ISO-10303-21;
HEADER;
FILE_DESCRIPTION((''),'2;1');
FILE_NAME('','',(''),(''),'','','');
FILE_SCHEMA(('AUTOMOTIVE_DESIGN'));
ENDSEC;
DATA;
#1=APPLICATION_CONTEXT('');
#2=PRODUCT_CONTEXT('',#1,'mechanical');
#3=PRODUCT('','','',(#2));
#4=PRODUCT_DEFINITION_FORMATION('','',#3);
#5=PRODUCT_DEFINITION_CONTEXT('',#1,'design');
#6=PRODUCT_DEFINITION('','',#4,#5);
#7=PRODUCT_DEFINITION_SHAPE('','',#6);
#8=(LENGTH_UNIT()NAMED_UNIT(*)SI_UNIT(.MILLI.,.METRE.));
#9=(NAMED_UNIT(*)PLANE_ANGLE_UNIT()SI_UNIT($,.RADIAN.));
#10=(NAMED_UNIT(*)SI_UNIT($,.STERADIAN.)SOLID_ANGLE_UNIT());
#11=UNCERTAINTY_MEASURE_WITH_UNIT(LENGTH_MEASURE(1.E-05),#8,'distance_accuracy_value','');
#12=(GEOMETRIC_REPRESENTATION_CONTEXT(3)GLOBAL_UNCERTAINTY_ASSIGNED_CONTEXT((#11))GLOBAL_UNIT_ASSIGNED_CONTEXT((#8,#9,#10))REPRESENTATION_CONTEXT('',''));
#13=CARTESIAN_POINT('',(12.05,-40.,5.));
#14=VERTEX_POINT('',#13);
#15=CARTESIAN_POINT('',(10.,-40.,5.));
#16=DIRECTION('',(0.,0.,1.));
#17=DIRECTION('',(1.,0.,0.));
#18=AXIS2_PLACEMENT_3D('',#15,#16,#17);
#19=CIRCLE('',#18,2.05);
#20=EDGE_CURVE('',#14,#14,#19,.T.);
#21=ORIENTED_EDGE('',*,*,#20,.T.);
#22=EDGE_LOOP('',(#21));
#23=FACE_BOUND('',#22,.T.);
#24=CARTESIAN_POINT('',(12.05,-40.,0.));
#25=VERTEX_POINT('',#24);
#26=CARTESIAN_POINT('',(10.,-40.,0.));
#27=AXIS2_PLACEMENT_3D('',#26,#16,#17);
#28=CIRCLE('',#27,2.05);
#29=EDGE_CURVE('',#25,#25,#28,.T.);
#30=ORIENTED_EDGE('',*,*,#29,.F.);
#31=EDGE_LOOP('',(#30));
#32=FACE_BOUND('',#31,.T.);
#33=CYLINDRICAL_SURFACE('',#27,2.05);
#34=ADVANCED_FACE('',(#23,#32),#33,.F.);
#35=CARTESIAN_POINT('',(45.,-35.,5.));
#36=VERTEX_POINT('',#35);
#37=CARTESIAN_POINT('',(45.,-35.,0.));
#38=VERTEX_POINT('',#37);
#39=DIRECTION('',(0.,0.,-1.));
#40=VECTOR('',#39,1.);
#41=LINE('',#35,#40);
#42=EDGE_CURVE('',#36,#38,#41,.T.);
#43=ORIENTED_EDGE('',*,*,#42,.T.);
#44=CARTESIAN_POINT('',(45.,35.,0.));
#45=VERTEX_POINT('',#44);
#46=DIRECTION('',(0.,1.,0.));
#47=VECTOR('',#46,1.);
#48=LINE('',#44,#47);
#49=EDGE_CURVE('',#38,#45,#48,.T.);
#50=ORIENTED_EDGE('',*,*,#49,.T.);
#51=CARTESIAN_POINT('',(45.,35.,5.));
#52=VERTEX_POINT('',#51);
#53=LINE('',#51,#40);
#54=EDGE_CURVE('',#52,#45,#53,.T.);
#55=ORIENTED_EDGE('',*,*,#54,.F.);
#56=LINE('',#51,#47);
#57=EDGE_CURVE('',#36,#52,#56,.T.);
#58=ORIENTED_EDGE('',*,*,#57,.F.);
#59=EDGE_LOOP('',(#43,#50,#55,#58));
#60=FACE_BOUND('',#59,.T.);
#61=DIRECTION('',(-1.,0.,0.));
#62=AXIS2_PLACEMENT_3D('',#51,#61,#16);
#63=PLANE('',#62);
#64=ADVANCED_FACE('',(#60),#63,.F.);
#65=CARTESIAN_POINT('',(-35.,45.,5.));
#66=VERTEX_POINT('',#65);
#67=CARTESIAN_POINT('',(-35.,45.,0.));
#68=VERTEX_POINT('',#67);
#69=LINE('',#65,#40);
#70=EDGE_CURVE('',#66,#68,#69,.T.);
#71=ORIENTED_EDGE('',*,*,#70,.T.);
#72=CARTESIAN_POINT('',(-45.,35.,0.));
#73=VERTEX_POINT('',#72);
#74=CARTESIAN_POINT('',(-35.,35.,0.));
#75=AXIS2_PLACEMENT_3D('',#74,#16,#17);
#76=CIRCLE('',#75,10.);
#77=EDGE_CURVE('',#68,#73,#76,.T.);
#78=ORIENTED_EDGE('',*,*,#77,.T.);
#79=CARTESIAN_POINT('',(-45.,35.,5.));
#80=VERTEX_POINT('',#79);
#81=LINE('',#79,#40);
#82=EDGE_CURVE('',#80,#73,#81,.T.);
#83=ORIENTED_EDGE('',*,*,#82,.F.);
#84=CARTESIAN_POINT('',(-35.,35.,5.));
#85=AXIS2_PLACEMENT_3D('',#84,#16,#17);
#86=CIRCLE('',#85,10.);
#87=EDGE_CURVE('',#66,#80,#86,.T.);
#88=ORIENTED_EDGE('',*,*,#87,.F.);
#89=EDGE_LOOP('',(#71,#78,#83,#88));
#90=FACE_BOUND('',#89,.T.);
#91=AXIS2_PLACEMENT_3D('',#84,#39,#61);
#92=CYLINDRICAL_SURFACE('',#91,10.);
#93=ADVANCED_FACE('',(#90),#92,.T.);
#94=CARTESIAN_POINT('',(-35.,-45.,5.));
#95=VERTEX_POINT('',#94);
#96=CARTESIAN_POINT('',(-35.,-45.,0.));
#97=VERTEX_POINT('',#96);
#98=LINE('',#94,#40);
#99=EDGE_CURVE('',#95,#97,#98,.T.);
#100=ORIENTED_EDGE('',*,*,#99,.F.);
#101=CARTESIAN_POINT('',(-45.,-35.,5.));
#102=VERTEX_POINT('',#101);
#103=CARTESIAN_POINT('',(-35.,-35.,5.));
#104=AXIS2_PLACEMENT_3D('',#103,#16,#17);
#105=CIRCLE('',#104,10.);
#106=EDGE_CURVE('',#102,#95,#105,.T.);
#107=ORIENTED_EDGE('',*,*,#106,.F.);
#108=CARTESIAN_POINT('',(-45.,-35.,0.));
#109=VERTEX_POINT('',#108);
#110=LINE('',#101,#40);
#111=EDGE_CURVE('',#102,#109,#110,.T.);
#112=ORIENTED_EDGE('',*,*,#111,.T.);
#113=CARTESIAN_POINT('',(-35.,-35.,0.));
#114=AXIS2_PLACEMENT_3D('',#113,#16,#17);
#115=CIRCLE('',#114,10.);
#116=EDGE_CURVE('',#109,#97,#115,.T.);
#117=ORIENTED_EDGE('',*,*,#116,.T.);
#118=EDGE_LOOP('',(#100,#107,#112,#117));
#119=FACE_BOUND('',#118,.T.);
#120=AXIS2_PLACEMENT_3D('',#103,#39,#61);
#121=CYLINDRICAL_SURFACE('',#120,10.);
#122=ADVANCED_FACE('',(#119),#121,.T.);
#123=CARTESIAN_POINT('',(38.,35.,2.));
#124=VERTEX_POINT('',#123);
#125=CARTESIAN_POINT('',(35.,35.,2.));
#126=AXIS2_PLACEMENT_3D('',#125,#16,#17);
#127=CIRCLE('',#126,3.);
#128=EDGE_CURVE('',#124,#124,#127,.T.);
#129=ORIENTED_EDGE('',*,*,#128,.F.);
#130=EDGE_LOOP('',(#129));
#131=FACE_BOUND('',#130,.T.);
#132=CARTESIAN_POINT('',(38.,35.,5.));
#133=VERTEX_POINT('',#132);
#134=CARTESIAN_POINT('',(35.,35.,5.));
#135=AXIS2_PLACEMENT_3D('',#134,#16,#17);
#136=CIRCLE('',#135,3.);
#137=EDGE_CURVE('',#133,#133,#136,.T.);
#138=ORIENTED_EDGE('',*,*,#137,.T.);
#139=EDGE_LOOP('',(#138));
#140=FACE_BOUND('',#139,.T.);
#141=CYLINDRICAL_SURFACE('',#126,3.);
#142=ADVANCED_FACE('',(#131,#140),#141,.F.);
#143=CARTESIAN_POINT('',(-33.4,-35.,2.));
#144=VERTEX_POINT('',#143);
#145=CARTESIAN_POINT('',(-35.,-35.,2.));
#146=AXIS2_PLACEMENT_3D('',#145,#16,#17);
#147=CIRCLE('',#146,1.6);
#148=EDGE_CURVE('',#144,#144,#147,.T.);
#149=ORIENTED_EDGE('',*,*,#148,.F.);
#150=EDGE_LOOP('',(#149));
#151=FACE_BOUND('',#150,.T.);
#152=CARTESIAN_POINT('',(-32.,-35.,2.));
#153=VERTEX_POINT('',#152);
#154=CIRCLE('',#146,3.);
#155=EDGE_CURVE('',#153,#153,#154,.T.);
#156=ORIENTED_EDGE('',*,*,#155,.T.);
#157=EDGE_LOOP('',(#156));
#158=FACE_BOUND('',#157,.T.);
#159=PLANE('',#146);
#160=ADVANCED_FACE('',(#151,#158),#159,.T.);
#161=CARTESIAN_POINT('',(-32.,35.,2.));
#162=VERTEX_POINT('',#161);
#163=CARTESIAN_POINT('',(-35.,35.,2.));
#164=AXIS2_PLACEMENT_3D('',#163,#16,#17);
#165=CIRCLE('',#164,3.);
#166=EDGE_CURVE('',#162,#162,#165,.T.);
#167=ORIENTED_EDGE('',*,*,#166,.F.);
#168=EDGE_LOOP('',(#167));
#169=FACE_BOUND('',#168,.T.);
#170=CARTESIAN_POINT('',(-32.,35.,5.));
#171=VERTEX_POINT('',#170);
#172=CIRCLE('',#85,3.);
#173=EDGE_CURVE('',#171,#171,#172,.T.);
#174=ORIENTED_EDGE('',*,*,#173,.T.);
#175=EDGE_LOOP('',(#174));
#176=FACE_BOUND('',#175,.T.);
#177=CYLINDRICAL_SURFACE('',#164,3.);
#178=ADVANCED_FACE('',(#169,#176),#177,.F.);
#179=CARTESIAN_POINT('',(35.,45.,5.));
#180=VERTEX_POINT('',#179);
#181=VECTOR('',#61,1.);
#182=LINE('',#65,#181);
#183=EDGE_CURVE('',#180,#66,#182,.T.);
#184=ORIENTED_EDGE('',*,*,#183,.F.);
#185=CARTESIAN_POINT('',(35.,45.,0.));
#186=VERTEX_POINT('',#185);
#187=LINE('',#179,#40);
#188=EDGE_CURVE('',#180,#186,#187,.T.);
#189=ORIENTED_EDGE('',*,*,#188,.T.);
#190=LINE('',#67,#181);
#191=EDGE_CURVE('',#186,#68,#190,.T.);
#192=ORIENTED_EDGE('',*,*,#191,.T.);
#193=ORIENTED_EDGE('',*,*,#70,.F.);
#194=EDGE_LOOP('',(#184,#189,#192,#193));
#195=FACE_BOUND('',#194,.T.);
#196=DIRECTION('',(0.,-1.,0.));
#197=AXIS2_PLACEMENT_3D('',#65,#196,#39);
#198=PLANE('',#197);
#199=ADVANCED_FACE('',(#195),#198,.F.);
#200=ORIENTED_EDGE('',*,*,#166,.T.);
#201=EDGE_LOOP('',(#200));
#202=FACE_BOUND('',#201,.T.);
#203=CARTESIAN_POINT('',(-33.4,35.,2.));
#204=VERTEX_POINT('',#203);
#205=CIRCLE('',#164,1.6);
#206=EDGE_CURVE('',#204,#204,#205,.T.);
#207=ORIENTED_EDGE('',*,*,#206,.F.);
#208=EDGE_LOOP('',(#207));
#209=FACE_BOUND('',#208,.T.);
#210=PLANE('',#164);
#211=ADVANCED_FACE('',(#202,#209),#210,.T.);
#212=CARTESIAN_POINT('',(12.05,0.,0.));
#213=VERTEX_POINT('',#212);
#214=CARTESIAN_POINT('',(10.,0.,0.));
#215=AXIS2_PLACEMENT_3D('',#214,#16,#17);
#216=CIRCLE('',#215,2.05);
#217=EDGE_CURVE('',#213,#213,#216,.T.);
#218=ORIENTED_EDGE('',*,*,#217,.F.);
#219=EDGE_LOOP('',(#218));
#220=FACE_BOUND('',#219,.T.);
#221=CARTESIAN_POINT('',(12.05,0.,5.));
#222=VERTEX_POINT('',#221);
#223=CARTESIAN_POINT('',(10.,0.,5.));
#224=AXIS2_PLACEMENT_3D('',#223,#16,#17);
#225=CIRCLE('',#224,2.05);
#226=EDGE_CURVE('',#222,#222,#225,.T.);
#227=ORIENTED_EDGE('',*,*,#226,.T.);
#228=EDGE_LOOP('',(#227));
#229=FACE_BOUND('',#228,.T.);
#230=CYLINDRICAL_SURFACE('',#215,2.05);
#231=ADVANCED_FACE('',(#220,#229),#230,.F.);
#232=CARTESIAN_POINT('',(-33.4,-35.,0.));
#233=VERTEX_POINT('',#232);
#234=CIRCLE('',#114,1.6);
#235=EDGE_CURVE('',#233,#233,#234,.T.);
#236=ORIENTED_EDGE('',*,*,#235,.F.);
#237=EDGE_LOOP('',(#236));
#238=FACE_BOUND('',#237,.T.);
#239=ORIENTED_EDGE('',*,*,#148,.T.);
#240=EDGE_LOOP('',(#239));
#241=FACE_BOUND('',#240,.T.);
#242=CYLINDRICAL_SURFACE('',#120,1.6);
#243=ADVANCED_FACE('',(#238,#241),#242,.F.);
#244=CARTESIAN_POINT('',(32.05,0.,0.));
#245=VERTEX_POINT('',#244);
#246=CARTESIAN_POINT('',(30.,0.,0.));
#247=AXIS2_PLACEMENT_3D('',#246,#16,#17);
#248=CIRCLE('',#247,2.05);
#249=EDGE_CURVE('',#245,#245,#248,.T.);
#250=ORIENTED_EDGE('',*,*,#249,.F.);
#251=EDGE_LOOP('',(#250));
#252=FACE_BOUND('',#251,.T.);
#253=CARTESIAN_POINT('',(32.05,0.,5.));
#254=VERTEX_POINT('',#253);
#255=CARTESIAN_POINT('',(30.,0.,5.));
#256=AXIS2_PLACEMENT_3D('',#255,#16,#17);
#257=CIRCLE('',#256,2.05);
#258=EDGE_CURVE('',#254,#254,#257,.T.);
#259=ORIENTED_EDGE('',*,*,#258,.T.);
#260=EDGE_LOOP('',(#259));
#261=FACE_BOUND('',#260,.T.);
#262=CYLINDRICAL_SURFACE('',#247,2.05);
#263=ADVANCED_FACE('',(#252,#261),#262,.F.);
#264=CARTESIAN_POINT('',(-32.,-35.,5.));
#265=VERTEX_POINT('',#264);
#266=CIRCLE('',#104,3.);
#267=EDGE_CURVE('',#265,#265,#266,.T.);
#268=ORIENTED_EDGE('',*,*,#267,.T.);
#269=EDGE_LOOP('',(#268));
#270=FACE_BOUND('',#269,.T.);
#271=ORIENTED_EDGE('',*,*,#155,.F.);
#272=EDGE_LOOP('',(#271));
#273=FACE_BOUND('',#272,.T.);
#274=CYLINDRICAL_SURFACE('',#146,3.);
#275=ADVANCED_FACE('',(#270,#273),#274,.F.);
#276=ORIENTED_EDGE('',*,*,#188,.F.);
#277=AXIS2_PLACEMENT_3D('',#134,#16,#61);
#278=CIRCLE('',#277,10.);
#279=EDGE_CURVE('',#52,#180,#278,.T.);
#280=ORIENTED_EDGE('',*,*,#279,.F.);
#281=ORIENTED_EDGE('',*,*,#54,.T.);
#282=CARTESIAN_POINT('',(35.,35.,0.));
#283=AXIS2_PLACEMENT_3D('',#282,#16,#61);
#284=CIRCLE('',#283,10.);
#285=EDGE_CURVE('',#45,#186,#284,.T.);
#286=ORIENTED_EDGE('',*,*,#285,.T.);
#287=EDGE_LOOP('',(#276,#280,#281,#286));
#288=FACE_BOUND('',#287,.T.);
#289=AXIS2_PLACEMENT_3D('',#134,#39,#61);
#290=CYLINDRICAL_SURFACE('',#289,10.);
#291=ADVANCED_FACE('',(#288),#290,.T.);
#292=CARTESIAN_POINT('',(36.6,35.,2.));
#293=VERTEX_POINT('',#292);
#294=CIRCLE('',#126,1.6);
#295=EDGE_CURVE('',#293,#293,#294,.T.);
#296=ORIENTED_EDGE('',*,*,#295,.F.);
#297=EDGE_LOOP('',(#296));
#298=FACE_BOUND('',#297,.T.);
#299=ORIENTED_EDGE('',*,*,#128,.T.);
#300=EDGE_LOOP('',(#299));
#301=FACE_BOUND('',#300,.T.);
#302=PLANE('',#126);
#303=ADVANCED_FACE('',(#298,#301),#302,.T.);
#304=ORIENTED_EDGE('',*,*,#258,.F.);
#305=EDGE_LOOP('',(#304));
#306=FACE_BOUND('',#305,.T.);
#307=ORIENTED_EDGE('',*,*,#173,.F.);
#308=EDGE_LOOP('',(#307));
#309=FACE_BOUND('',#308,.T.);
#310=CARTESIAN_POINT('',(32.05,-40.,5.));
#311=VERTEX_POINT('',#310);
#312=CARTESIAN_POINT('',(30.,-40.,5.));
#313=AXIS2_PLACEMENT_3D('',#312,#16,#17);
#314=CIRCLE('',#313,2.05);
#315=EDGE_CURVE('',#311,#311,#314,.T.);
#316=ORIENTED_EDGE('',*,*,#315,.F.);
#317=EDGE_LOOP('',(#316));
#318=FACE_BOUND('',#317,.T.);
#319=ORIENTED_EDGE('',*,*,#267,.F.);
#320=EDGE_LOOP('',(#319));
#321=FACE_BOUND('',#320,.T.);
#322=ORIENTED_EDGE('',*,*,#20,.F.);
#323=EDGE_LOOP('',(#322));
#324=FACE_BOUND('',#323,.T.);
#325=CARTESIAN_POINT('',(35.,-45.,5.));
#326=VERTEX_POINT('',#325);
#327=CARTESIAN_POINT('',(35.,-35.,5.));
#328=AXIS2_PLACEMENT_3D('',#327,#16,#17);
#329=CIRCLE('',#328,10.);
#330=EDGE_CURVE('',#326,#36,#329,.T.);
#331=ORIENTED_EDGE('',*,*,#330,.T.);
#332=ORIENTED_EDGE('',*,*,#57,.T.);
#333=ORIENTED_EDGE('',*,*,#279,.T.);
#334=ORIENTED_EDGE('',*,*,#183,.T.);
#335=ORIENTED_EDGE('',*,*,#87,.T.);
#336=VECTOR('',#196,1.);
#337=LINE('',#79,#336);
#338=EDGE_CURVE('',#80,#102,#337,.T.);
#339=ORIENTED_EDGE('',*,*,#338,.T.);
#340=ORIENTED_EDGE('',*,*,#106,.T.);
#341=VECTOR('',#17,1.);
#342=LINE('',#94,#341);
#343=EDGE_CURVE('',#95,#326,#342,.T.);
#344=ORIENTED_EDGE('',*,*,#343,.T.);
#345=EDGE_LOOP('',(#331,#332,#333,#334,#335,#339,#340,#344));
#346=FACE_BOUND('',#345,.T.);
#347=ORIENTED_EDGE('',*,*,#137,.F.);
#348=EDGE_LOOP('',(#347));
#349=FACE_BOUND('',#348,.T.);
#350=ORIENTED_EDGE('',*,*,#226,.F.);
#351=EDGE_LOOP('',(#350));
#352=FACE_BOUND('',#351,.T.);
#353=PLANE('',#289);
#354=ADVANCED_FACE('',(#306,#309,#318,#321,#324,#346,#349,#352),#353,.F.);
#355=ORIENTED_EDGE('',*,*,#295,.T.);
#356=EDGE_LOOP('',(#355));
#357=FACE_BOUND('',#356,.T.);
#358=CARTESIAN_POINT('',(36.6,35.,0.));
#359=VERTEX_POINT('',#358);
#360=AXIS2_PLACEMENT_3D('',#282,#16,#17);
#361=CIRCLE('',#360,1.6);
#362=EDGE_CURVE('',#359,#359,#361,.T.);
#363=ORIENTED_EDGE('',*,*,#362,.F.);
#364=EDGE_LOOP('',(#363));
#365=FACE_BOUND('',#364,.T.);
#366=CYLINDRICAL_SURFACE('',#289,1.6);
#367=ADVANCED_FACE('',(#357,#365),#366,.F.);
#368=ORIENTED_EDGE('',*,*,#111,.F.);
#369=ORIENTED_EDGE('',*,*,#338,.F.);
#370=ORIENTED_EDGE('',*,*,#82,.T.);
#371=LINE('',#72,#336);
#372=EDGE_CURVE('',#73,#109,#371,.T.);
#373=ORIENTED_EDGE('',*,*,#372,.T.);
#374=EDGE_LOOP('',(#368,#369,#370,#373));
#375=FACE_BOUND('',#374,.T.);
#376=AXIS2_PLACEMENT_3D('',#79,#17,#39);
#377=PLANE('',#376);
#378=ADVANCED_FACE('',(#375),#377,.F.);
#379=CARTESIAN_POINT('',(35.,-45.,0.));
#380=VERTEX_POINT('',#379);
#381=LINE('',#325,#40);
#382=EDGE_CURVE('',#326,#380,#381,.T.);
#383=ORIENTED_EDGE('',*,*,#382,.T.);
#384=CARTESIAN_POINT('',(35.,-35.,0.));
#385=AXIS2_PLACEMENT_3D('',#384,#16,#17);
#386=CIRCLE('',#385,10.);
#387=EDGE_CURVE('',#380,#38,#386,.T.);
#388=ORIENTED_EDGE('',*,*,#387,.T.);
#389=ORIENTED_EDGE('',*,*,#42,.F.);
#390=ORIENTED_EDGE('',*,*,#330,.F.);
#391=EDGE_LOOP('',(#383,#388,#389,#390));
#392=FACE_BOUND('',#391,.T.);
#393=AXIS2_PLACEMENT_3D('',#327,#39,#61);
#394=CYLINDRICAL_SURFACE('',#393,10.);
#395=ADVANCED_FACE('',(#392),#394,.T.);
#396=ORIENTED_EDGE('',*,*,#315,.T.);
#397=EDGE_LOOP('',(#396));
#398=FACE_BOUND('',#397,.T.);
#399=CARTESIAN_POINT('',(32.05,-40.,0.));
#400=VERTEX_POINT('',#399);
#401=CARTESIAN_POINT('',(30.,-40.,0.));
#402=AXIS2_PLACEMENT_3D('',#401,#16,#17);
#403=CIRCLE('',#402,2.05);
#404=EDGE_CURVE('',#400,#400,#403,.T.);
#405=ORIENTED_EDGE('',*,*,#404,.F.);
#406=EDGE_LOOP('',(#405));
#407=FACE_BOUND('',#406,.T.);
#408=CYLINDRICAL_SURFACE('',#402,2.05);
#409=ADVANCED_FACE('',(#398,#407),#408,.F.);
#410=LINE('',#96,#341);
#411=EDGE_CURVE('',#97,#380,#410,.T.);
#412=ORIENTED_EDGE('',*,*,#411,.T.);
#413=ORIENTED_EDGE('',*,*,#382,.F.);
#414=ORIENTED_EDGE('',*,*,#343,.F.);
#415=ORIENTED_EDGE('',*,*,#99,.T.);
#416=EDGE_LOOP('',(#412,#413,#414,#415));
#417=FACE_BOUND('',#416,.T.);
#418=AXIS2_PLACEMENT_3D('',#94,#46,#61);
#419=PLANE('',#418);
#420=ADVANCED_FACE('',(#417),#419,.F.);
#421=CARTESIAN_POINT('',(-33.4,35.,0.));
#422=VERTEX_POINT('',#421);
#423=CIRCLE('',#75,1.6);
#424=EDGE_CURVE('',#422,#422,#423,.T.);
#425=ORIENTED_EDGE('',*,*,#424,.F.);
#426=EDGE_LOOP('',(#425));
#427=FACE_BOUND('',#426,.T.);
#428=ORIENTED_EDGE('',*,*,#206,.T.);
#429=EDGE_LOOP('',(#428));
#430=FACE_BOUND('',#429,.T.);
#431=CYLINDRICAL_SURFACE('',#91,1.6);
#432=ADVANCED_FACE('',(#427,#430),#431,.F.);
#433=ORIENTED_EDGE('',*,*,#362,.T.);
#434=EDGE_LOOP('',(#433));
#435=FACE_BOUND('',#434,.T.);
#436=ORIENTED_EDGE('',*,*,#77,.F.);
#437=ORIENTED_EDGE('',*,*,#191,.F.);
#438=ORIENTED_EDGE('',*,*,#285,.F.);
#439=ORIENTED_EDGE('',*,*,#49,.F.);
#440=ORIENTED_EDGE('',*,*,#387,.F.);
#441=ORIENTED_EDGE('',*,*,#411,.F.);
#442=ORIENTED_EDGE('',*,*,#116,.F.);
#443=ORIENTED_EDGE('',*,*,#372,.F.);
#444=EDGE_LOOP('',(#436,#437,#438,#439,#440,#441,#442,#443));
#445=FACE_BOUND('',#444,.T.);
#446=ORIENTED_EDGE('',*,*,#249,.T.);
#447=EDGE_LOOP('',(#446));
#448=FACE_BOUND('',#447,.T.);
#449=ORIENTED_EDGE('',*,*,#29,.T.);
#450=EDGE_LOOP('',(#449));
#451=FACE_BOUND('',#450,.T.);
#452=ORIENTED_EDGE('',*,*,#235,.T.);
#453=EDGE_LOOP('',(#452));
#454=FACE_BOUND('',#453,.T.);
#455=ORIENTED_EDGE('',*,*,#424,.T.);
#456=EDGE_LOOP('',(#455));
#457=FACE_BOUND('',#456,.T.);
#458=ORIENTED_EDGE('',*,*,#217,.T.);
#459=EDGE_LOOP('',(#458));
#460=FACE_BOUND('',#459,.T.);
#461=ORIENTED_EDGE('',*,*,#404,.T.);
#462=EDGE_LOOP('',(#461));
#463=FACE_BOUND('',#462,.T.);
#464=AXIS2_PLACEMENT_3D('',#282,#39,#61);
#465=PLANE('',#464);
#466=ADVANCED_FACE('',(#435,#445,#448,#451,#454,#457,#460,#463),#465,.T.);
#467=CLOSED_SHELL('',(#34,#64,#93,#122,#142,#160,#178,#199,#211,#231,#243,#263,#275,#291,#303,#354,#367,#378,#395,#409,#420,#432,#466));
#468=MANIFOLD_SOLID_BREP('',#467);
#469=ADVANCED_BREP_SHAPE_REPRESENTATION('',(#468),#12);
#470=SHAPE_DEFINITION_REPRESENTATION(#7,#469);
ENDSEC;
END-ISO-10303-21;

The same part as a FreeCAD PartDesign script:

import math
import FreeCAD as App
import Part
import Sketcher
from FreeCAD import Vector
Q = App.Units.Quantity

doc = App.newDocument("Part")
body = doc.addObject("PartDesign::Body", "Body")

sketch1 = body.newObject("Sketcher::SketchObject", "Sketch")
sketch1.AttachmentSupport = (doc.getObject("XY_Plane"), [""])
sketch1.MapMode = "FlatFace"
sketch1.addGeometry([
    Part.LineSegment(Vector(35, 45, 0), Vector(-35, 45, 0)),
    Part.ArcOfCircle(Part.Circle(Vector(-35, 35, 0), Vector(0, 0, 1), 10), math.radians(90), math.radians(180)),
    Part.LineSegment(Vector(-45, 35, 0), Vector(-45, -35, 0)),
    Part.ArcOfCircle(Part.Circle(Vector(-35, -35, 0), Vector(0, 0, 1), 10), math.radians(180), math.radians(270)),
    Part.LineSegment(Vector(-35, -45, 0), Vector(35, -45, 0)),
    Part.ArcOfCircle(Part.Circle(Vector(35, -35, 0), Vector(0, 0, 1), 10), math.radians(-90), math.radians(0)),
    Part.LineSegment(Vector(45, -35, 0), Vector(45, 35, 0)),
    Part.ArcOfCircle(Part.Circle(Vector(35, 35, 0), Vector(0, 0, 1), 10), math.radians(0), math.radians(90)),
    Part.Circle(Vector(-35, -35, 0), Vector(0, 0, 1), 1.6),
    Part.Circle(Vector(35, 35, 0), Vector(0, 0, 1), 1.6),
    Part.Circle(Vector(-35, 35, 0), Vector(0, 0, 1), 1.6),
], False)
sketch1.addConstraint([
    Sketcher.Constraint("Tangent", 0, 2, 1, 1),
    Sketcher.Constraint("Tangent", 1, 2, 2, 1),
    Sketcher.Constraint("Tangent", 2, 2, 3, 1),
    Sketcher.Constraint("Tangent", 3, 2, 4, 1),
    Sketcher.Constraint("Tangent", 4, 2, 5, 1),
    Sketcher.Constraint("Tangent", 5, 2, 6, 1),
    Sketcher.Constraint("Tangent", 6, 2, 7, 1),
    Sketcher.Constraint("Tangent", 7, 2, 0, 1),
    Sketcher.Constraint("Horizontal", 0),
    Sketcher.Constraint("Vertical", 2),
    Sketcher.Constraint("Horizontal", 4),
    Sketcher.Constraint("Vertical", 6),
    Sketcher.Constraint("Coincident", 8, 3, 3, 3),
    Sketcher.Constraint("Coincident", 9, 3, 7, 3),
    Sketcher.Constraint("Coincident", 10, 3, 1, 3),
    Sketcher.Constraint("Equal", 1, 3),
    Sketcher.Constraint("Equal", 3, 5),
    Sketcher.Constraint("Equal", 5, 7),
    Sketcher.Constraint("Equal", 8, 9),
    Sketcher.Constraint("Equal", 9, 10),
    Sketcher.Constraint("Symmetric", 1, 3, 5, 3, -1, 1),
    Sketcher.Constraint("Equal", 4, 2),
    Sketcher.Constraint("Radius", 1, Q("10 mm")),
    Sketcher.Constraint("Diameter", 8, Q("3.2 mm")),
    Sketcher.Constraint("DistanceX", 0, 2, 0, 1, Q("70 mm")),
])
pad1 = body.newObject("PartDesign::Pad", "Pad")
pad1.Profile = sketch1
pad1.Length = 5

sketch2 = body.newObject("Sketcher::SketchObject", "Sketch001")
sketch2.AttachmentSupport = (doc.getObject("XY_Plane"), [""])
sketch2.MapMode = "FlatFace"
sketch2.AttachmentOffset = App.Placement(Vector(0, 0, 5), App.Rotation())
sketch2.addGeometry([
    Part.Circle(Vector(-35, 35, 0), Vector(0, 0, 1), 3),
    Part.Circle(Vector(35, 35, 0), Vector(0, 0, 1), 3),
    Part.Circle(Vector(-35, -35, 0), Vector(0, 0, 1), 3),
], False)
sketch2.addConstraint([
    Sketcher.Constraint("Equal", 0, 1),
    Sketcher.Constraint("Equal", 1, 2),
    Sketcher.Constraint("Symmetric", 1, 3, 2, 3, -1, 1),
    Sketcher.Constraint("Symmetric", 0, 3, 1, 3, -2),
    Sketcher.Constraint("Diameter", 0, Q("6 mm")),
    Sketcher.Constraint("DistanceX", 0, 3, -1, 1, Q("35 mm")),
    Sketcher.Constraint("DistanceY", -1, 1, 0, 3, Q("35 mm")),
])
pocket1 = body.newObject("PartDesign::Pocket", "Pocket")
pocket1.Profile = sketch2
pocket1.Length = 3

sketch3 = body.newObject("Sketcher::SketchObject", "Sketch002")
sketch3.AttachmentSupport = (doc.getObject("XY_Plane"), [""])
sketch3.MapMode = "FlatFace"
sketch3.AttachmentOffset = App.Placement(Vector(0, 0, 5), App.Rotation())
sketch3.addGeometry([
    Part.Circle(Vector(30, 0, 0), Vector(0, 0, 1), 2),
    Part.Circle(Vector(10, 0, 0), Vector(0, 0, 1), 2),
    Part.Circle(Vector(10, -40, 0), Vector(0, 0, 1), 2),
    Part.Circle(Vector(30, -40, 0), Vector(0, 0, 1), 2),
], False)
sketch3.addConstraint([
    Sketcher.Constraint("Equal", 0, 1),
    Sketcher.Constraint("Equal", 1, 2),
    Sketcher.Constraint("Equal", 2, 3),
    Sketcher.Constraint("PointOnObject", 0, 3, -1),
    Sketcher.Constraint("PointOnObject", 1, 3, -1),
    Sketcher.Constraint("Horizontal", 2, 3, 3, 3),
    Sketcher.Constraint("Vertical", 1, 3, 2, 3),
    Sketcher.Constraint("Vertical", 0, 3, 3, 3),
    Sketcher.Constraint("Diameter", 0, Q("4.1 mm")),
    Sketcher.Constraint("DistanceX", -1, 1, 0, 3, Q("30 mm")),
    Sketcher.Constraint("DistanceX", -1, 1, 1, 3, Q("10 mm")),
    Sketcher.Constraint("DistanceY", 2, 3, -1, 1, Q("40 mm")),
])
pocket2 = body.newObject("PartDesign::Pocket", "Pocket001")
pocket2.Profile = sketch3
pocket2.Type = "ThroughAll"

doc.recompute()
